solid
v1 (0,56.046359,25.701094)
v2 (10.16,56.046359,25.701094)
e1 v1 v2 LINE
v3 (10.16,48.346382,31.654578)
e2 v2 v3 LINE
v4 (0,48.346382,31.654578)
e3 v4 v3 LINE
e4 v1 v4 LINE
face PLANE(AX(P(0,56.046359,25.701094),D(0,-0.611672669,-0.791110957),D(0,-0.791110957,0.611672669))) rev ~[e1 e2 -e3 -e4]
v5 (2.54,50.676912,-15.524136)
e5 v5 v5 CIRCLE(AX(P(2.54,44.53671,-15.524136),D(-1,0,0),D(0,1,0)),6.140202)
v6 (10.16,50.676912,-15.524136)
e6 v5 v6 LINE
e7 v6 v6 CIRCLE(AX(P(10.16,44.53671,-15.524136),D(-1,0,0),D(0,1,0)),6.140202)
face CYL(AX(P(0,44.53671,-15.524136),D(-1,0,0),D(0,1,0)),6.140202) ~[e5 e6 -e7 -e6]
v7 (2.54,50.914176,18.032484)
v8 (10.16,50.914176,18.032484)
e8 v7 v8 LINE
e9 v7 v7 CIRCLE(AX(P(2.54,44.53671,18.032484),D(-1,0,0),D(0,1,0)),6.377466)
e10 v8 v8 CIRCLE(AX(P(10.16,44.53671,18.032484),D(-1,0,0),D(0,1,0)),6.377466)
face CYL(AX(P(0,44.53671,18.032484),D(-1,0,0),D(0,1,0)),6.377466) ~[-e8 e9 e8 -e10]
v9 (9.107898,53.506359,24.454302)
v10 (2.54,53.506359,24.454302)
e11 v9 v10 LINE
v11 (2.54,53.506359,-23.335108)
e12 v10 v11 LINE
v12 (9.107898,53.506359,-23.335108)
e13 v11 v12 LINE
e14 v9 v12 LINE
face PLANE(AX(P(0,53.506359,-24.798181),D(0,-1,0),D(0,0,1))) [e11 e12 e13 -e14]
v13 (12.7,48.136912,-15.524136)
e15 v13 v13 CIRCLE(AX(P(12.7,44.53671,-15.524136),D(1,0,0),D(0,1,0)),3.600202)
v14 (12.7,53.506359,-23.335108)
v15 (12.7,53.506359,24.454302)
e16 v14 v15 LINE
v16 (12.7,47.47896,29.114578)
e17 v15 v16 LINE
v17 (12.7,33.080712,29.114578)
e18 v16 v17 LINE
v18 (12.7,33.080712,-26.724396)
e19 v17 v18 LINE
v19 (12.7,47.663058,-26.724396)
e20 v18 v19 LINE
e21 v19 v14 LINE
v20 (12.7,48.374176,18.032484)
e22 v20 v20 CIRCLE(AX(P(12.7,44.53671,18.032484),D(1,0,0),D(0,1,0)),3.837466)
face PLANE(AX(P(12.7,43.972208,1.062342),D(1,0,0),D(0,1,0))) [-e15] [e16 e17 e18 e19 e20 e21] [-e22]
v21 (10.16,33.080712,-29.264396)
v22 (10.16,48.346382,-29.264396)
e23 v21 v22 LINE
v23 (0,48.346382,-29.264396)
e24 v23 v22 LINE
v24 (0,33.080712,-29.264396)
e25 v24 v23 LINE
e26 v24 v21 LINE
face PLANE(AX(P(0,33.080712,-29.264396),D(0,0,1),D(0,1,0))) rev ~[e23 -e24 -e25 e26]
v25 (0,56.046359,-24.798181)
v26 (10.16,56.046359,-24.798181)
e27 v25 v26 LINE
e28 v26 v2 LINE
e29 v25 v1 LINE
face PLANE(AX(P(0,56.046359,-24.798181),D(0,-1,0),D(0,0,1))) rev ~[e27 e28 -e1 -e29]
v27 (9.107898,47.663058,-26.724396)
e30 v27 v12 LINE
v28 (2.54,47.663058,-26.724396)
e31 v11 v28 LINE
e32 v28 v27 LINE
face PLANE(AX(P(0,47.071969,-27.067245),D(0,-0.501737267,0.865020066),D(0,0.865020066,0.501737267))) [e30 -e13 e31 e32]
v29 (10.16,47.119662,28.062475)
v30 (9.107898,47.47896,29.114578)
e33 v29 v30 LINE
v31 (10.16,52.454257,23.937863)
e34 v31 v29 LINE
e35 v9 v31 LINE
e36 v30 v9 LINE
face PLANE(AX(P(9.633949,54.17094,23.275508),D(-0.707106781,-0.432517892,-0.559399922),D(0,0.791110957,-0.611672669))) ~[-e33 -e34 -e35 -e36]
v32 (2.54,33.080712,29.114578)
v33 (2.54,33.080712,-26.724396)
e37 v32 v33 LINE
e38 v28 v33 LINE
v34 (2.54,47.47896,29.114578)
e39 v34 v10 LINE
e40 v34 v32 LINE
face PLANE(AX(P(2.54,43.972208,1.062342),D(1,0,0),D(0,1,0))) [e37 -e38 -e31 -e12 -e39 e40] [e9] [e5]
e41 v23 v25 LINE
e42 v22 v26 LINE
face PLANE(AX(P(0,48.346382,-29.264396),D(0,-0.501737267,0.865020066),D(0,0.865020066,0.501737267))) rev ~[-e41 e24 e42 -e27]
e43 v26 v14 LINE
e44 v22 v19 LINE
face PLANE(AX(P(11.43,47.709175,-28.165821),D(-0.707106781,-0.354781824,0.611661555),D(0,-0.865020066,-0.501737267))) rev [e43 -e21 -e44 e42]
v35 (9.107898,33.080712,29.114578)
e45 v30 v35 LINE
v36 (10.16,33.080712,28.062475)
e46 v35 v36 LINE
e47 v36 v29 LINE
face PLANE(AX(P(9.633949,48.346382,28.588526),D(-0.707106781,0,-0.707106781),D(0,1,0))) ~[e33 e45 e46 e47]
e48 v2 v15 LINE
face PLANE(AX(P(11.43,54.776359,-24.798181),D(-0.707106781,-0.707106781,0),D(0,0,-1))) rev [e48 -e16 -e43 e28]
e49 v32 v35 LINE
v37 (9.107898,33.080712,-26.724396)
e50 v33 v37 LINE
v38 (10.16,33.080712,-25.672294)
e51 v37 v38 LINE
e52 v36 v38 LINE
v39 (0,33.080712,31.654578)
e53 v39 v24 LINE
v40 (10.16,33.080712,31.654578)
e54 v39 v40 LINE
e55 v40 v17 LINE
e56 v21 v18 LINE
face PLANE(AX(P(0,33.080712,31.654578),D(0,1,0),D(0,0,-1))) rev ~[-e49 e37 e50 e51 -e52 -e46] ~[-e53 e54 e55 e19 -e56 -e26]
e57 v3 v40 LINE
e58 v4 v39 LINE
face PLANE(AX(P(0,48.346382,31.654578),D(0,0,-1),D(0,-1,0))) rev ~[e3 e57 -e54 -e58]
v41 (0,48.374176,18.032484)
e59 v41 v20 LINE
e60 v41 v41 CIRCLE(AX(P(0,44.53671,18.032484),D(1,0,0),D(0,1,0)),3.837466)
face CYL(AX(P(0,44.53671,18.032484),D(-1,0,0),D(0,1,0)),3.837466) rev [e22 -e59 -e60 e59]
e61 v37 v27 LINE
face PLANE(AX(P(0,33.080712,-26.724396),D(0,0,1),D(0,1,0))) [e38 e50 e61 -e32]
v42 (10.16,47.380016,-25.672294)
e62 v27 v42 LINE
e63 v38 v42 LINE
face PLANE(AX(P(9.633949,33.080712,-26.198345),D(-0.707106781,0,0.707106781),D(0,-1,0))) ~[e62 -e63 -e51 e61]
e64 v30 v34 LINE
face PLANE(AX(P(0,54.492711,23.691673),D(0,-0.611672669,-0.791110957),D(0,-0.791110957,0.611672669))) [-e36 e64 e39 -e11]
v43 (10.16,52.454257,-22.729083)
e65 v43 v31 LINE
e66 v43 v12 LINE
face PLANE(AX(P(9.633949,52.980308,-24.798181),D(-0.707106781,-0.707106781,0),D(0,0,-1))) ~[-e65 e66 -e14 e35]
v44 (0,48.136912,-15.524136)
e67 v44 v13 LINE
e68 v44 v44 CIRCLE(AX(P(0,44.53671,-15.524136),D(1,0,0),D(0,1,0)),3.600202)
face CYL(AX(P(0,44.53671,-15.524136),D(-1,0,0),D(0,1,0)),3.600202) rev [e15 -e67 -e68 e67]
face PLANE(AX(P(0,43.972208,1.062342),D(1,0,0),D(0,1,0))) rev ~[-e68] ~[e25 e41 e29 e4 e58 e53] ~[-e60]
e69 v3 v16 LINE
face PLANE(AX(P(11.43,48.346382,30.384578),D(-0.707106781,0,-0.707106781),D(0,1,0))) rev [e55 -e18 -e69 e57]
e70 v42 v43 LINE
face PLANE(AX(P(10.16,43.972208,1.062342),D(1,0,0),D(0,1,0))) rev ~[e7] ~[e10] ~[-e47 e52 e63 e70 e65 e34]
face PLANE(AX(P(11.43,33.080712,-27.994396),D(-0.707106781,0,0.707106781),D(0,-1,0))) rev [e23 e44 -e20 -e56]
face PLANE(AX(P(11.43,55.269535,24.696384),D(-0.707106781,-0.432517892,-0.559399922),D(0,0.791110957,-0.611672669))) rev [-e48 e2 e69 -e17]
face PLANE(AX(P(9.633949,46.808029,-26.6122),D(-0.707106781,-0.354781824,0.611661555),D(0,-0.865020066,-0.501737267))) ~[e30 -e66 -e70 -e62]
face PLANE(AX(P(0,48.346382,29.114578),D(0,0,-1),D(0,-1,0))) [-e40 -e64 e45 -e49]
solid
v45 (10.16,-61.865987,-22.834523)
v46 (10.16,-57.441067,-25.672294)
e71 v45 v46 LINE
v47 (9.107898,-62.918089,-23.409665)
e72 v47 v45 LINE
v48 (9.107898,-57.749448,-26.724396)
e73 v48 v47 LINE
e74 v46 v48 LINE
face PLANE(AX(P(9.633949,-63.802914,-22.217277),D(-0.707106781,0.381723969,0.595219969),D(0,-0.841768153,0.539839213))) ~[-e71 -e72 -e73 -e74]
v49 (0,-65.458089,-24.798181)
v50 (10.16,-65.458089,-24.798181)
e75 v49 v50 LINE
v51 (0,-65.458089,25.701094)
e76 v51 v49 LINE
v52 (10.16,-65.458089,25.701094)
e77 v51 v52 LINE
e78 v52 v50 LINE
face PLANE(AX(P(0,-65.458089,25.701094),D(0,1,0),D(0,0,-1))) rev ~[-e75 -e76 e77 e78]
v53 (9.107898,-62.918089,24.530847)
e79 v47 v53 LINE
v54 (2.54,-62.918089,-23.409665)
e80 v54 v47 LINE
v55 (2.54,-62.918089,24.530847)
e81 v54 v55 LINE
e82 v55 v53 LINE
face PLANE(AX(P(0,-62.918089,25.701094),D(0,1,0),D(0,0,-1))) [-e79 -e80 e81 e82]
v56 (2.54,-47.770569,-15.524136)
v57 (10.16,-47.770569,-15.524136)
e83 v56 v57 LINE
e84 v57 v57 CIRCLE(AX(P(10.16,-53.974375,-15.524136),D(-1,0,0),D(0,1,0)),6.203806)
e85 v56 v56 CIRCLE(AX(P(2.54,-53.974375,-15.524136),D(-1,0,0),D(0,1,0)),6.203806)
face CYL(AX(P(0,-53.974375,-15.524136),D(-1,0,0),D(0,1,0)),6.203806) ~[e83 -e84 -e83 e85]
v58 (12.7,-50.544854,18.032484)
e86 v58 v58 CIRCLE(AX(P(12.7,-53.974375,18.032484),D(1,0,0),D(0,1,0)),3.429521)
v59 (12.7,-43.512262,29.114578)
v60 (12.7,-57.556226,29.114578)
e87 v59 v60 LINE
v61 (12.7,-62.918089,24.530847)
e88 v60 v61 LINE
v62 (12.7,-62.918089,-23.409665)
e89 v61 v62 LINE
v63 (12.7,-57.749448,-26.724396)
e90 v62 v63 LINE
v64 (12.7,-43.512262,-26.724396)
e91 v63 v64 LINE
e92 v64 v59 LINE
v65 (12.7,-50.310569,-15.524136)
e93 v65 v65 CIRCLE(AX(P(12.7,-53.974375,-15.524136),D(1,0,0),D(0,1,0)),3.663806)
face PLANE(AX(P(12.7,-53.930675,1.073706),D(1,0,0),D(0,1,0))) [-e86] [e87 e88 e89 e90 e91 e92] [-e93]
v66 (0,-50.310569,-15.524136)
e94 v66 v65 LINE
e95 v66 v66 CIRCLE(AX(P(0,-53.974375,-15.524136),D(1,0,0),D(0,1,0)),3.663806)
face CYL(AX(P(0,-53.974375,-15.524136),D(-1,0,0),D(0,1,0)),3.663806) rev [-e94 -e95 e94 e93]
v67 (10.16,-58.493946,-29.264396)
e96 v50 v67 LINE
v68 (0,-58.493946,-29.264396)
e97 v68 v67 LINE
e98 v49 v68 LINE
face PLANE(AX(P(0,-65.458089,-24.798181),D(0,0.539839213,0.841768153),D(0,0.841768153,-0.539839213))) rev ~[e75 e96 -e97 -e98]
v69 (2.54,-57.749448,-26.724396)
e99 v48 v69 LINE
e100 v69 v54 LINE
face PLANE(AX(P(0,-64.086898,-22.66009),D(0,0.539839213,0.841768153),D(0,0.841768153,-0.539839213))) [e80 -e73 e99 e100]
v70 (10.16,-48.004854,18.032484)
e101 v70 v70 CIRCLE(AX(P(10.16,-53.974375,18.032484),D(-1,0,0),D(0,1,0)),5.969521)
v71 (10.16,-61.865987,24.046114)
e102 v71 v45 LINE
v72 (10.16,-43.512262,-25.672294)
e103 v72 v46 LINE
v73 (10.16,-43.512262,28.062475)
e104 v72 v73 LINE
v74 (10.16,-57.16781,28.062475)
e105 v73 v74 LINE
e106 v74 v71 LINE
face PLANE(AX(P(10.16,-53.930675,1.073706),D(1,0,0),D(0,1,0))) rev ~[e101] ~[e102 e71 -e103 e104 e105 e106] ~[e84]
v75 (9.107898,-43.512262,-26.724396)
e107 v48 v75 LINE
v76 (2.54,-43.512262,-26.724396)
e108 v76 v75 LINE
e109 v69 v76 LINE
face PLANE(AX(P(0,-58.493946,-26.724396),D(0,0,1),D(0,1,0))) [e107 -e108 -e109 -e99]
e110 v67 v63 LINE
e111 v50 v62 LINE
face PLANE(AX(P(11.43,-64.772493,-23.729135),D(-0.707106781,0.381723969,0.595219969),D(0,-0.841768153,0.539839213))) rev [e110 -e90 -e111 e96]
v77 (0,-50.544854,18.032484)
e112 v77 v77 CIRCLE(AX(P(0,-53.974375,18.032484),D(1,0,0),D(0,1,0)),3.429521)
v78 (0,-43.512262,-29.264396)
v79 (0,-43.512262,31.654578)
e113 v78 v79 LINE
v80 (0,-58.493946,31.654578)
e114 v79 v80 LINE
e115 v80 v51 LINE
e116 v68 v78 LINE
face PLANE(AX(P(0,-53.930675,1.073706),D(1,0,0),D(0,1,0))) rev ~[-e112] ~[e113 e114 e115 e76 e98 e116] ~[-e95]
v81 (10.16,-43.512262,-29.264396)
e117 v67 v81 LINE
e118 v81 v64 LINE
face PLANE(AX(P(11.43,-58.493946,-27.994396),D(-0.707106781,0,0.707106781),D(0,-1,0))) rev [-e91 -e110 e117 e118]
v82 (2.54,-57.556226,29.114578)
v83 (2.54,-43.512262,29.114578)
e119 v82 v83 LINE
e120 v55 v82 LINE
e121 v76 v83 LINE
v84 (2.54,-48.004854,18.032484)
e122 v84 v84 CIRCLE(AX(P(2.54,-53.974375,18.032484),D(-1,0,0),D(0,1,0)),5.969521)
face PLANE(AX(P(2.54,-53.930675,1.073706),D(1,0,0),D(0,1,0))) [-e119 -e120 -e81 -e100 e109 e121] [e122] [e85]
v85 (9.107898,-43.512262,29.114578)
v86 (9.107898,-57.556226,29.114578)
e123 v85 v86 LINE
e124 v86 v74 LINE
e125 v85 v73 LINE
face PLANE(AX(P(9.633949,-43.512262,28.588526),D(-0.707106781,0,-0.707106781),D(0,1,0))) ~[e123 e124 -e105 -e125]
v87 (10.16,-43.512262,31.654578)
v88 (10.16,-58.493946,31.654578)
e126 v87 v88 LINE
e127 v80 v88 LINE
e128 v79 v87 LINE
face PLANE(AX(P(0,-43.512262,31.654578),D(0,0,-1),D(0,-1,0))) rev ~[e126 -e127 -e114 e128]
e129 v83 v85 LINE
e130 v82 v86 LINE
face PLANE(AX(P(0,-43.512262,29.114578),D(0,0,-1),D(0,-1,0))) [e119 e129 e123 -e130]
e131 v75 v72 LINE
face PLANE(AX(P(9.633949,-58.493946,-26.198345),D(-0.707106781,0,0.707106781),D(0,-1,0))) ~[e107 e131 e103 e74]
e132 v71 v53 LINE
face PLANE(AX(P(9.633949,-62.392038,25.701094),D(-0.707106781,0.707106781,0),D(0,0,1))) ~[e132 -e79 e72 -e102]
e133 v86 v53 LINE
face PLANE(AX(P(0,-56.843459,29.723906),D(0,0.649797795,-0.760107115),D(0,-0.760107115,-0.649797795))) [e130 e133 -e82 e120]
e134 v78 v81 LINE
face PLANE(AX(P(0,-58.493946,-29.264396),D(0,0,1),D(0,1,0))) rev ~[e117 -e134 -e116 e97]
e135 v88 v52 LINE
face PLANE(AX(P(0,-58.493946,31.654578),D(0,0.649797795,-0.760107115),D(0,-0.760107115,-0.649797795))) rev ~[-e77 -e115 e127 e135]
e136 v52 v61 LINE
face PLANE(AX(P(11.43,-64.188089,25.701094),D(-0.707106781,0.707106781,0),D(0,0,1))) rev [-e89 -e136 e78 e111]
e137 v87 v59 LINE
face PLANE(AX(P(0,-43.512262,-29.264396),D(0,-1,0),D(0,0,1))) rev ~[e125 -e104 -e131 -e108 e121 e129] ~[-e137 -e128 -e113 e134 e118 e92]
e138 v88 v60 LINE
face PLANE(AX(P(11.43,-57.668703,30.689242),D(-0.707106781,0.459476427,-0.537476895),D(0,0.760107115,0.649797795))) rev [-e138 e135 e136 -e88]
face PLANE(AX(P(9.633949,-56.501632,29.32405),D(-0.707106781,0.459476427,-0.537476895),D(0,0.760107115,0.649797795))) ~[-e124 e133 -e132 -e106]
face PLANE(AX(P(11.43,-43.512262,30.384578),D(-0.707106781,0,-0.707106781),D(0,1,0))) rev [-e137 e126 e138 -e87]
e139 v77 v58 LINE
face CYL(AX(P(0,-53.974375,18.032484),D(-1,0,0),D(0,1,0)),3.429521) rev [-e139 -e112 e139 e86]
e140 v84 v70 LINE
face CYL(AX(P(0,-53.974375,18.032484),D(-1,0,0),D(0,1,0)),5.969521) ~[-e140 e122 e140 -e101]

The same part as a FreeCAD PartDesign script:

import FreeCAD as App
import Part
import Sketcher
Q = App.Units.Quantity


def edges_at(feature, points):
    """Names of the edges that pass closest to the given points."""
    edges = feature.Shape.Edges
    near = lambda p: min(range(len(edges)), key=lambda i: edges[i].distToShape(Part.Vertex(*p))[0])
    return sorted({f"Edge{near(p) + 1}" for p in points})


def faces_at(feature, points):
    """Names of the faces that lie closest to the given points."""
    faces = feature.Shape.Faces
    near = lambda p: min(range(len(faces)), key=lambda i: faces[i].distToShape(Part.Vertex(*p))[0])
    return sorted({f"Face{near(p) + 1}" for p in points})

doc = App.newDocument("Part")
body = doc.addObject("PartDesign::Body", "Body")

# Sketch on YZ plane
sketch1 = body.newObject("Sketcher::SketchObject", "Sketch")
sketch1.AttachmentSupport = (doc.getObject("YZ_Plane"), [""])
sketch1.MapMode = "FlatFace"
sketch1.addGeometry(Part.LineSegment(App.Vector(48.3, 31.7, 0), App.Vector(33.1, 31.7, 0)), False)
sketch1.addGeometry(Part.LineSegment(App.Vector(33.1, 31.7, 0), App.Vector(33.1, -29.3, 0)), False)
sketch1.addGeometry(Part.LineSegment(App.Vector(33.1, -29.3, 0), App.Vector(48.3, -29.3, 0)), False)
sketch1.addGeometry(Part.LineSegment(App.Vector(48.3, -29.3, 0), App.Vector(56, -24.8, 0)), False)
sketch1.addGeometry(Part.LineSegment(App.Vector(56, -24.8, 0), App.Vector(56, 25.7, 0)), False)
sketch1.addGeometry(Part.LineSegment(App.Vector(56, 25.7, 0), App.Vector(48.3, 31.7, 0)), False)
sketch1.addGeometry(Part.Circle(App.Vector(44.5, -15.5, 0), App.Vector(0, 0, 1), 3.6), False)
sketch1.addGeometry(Part.Circle(App.Vector(44.5, 18, 0), App.Vector(0, 0, 1), 3.8), False)
sketch1.addConstraint(Sketcher.Constraint("Coincident", 0, 2, 1, 1))
sketch1.addConstraint(Sketcher.Constraint("Coincident", 1, 2, 2, 1))
sketch1.addConstraint(Sketcher.Constraint("Coincident", 2, 2, 3, 1))
sketch1.addConstraint(Sketcher.Constraint("Coincident", 3, 2, 4, 1))
sketch1.addConstraint(Sketcher.Constraint("Coincident", 4, 2, 5, 1))
sketch1.addConstraint(Sketcher.Constraint("Coincident", 5, 2, 0, 1))
sketch1.addConstraint(Sketcher.Constraint("Horizontal", 0))
sketch1.addConstraint(Sketcher.Constraint("Vertical", 1))
sketch1.addConstraint(Sketcher.Constraint("Horizontal", 2))
sketch1.addConstraint(Sketcher.Constraint("Vertical", 4))
sketch1.addConstraint(Sketcher.Constraint("Vertical", 6, 3, 7, 3))
sketch1.addConstraint(Sketcher.Constraint("Vertical", 2, 2, 5, 2))
sketch1.addConstraint(Sketcher.Constraint("Diameter", 6, Q("7.200404 mm")))
sketch1.addConstraint(Sketcher.Constraint("Diameter", 7, Q("7.674932 mm")))
sketch1.addConstraint(Sketcher.Constraint("Distance", 3, Q("8.901502 mm")))
sketch1.addConstraint(Sketcher.Constraint("DistanceX", 0, 2, 0, 1, Q("15.26567 mm")))
sketch1.addConstraint(Sketcher.Constraint("Distance", 5, Q("9.73312 mm")))
sketch1.addConstraint(Sketcher.Constraint("DistanceY", 1, 2, 1, 1, Q("60.918974 mm")))
sketch1.addConstraint(Sketcher.Constraint("DistanceY", 4, 1, 4, 2, Q("50.499275 mm")))
sketch1.addConstraint(Sketcher.Constraint("DistanceX", -1, 1, 6, 3, Q("44.53671 mm")))
sketch1.addConstraint(Sketcher.Constraint("DistanceX", -1, 1, 0, 2, Q("33.080712 mm")))
sketch1.addConstraint(Sketcher.Constraint("DistanceY", 3, 2, -1, 1, Q("24.798181 mm")))
sketch1.addConstraint(Sketcher.Constraint("DistanceY", 6, 3, 7, 3, Q("33.55662 mm")))
sketch1.addConstraint(Sketcher.Constraint("DistanceY", 1, 2, 6, 3, Q("13.74026 mm")))
pad1 = body.newObject("PartDesign::Pad", "Pad")
pad1.Profile = sketch1
pad1.Length = Q("0.5 in")
doc.recompute()

chamfer = body.newObject("PartDesign::Chamfer", "Chamfer")
chamfer.Base = (pad1, edges_at(pad1, [
    (12.7, 40.714, 31.655),
    (12.7, 52.196, 28.678),
    (12.7, 56.046, 0.451),
    (12.7, 40.714, -29.264),
    (12.7, 52.196, -27.031),
]))
chamfer.Size = Q("0.1 in")
doc.recompute()

thickness = body.newObject("PartDesign::Thickness", "Thickness")
thickness.Base = (chamfer, faces_at(chamfer, [(6.35, 33.081, 1.195)]))
thickness.Value = Q("0.1 in")
thickness.Reversed = True
thickness.Join = "Arc"
body2 = doc.addObject("PartDesign::Body", "Body001")

# Sketch on YZ plane
sketch2 = body2.newObject("Sketcher::SketchObject", "Sketch001")
sketch2.AttachmentSupport = (doc.getObject("YZ_Plane001"), [""])
sketch2.MapMode = "FlatFace"
sketch2.addGeometry(Part.LineSegment(App.Vector(-43.5, -29.3, 0), App.Vector(-43.5, 31.7, 0)), False)
sketch2.addGeometry(Part.LineSegment(App.Vector(-43.5, 31.7, 0), App.Vector(-58.5, 31.7, 0)), False)
sketch2.addGeometry(Part.LineSegment(App.Vector(-58.5, 31.7, 0), App.Vector(-65.5, 25.7, 0)), False)
sketch2.addGeometry(Part.LineSegment(App.Vector(-65.5, 25.7, 0), App.Vector(-65.5, -24.8, 0)), False)
sketch2.addGeometry(Part.LineSegment(App.Vector(-65.5, -24.8, 0), App.Vector(-58.5, -29.3, 0)), False)
sketch2.addGeometry(Part.LineSegment(App.Vector(-58.5, -29.3, 0), App.Vector(-43.5, -29.3, 0)), False)
sketch2.addGeometry(Part.Circle(App.Vector(-54, -15.5, 0), App.Vector(0, 0, 1), 3.7), False)
sketch2.addGeometry(Part.Circle(App.Vector(-54, 18, 0), App.Vector(0, 0, 1), 3.4), False)
sketch2.addConstraint(Sketcher.Constraint("Coincident", 0, 2, 1, 1))
sketch2.addConstraint(Sketcher.Constraint("Coincident", 1, 2, 2, 1))
sketch2.addConstraint(Sketcher.Constraint("Coincident", 2, 2, 3, 1))
sketch2.addConstraint(Sketcher.Constraint("Coincident", 3, 2, 4, 1))
sketch2.addConstraint(Sketcher.Constraint("Coincident", 4, 2, 5, 1))
sketch2.addConstraint(Sketcher.Constraint("Coincident", 5, 2, 0, 1))
sketch2.addConstraint(Sketcher.Constraint("Vertical", 0))
sketch2.addConstraint(Sketcher.Constraint("Horizontal", 1))
sketch2.addConstraint(Sketcher.Constraint("Vertical", 3))
sketch2.addConstraint(Sketcher.Constraint("Horizontal", 5))
sketch2.addConstraint(Sketcher.Constraint("Vertical", 6, 3, 7, 3))
sketch2.addConstraint(Sketcher.Constraint("Vertical", 1, 2, 4, 2))
sketch2.addConstraint(Sketcher.Constraint("Diameter", 6, Q("7.327612 mm")))
sketch2.addConstraint(Sketcher.Constraint("Diameter", 7, Q("6.859042 mm")))
sketch2.addConstraint(Sketcher.Constraint("DistanceX", 1, 2, 1, 1, Q("14.981683 mm")))
sketch2.addConstraint(Sketcher.Constraint("DistanceY", 0, 1, 0, 2, Q("60.918974 mm")))
sketch2.addConstraint(Sketcher.Constraint("DistanceY", 3, 2, 3, 1, Q("50.499275 mm")))
sketch2.addConstraint(Sketcher.Constraint("DistanceX", 2, 2, -1, 1, Q("65.458089 mm")))
sketch2.addConstraint(Sketcher.Constraint("DistanceY", 3, 2, -1, 1, Q("24.798181 mm")))
sketch2.addConstraint(Sketcher.Constraint("DistanceY", 6, 3, 7, 3, Q("33.55662 mm")))
sketch2.addConstraint(Sketcher.Constraint("DistanceX", 1, 2, 7, 3, Q("4.519571 mm")))
sketch2.addConstraint(Sketcher.Constraint("DistanceY", 7, 3, 2, 2, Q("7.668611 mm")))
sketch2.addConstraint(Sketcher.Constraint("DistanceY", 3, 2, 1, 2, Q("56.452759 mm")))
sketch2.addConstraint(Sketcher.Constraint("Distance", 2, Q("9.162055 mm")))
pad2 = body2.newObject("PartDesign::Pad", "Pad001")
pad2.Profile = sketch2
pad2.Length = Q("0.5 in")
doc.recompute()

chamfer2 = body2.newObject("PartDesign::Chamfer", "Chamfer001")
chamfer2.Base = (pad2, edges_at(pad2, [
    (12.7, -51.003, 31.655),
    (12.7, -61.976, 28.678),
    (12.7, -65.458, 0.451),
    (12.7, -61.976, -27.031),
    (12.7, -51.003, -29.264),
]))
chamfer2.Size = Q("0.1 in")
doc.recompute()

thickness2 = body2.newObject("PartDesign::Thickness", "Thickness001")
thickness2.Base = (chamfer2, faces_at(chamfer2, [(6.35, -43.512, 1.195)]))
thickness2.Value = Q("0.1 in")
thickness2.Reversed = True
thickness2.Join = "Arc"

doc.recompute()
